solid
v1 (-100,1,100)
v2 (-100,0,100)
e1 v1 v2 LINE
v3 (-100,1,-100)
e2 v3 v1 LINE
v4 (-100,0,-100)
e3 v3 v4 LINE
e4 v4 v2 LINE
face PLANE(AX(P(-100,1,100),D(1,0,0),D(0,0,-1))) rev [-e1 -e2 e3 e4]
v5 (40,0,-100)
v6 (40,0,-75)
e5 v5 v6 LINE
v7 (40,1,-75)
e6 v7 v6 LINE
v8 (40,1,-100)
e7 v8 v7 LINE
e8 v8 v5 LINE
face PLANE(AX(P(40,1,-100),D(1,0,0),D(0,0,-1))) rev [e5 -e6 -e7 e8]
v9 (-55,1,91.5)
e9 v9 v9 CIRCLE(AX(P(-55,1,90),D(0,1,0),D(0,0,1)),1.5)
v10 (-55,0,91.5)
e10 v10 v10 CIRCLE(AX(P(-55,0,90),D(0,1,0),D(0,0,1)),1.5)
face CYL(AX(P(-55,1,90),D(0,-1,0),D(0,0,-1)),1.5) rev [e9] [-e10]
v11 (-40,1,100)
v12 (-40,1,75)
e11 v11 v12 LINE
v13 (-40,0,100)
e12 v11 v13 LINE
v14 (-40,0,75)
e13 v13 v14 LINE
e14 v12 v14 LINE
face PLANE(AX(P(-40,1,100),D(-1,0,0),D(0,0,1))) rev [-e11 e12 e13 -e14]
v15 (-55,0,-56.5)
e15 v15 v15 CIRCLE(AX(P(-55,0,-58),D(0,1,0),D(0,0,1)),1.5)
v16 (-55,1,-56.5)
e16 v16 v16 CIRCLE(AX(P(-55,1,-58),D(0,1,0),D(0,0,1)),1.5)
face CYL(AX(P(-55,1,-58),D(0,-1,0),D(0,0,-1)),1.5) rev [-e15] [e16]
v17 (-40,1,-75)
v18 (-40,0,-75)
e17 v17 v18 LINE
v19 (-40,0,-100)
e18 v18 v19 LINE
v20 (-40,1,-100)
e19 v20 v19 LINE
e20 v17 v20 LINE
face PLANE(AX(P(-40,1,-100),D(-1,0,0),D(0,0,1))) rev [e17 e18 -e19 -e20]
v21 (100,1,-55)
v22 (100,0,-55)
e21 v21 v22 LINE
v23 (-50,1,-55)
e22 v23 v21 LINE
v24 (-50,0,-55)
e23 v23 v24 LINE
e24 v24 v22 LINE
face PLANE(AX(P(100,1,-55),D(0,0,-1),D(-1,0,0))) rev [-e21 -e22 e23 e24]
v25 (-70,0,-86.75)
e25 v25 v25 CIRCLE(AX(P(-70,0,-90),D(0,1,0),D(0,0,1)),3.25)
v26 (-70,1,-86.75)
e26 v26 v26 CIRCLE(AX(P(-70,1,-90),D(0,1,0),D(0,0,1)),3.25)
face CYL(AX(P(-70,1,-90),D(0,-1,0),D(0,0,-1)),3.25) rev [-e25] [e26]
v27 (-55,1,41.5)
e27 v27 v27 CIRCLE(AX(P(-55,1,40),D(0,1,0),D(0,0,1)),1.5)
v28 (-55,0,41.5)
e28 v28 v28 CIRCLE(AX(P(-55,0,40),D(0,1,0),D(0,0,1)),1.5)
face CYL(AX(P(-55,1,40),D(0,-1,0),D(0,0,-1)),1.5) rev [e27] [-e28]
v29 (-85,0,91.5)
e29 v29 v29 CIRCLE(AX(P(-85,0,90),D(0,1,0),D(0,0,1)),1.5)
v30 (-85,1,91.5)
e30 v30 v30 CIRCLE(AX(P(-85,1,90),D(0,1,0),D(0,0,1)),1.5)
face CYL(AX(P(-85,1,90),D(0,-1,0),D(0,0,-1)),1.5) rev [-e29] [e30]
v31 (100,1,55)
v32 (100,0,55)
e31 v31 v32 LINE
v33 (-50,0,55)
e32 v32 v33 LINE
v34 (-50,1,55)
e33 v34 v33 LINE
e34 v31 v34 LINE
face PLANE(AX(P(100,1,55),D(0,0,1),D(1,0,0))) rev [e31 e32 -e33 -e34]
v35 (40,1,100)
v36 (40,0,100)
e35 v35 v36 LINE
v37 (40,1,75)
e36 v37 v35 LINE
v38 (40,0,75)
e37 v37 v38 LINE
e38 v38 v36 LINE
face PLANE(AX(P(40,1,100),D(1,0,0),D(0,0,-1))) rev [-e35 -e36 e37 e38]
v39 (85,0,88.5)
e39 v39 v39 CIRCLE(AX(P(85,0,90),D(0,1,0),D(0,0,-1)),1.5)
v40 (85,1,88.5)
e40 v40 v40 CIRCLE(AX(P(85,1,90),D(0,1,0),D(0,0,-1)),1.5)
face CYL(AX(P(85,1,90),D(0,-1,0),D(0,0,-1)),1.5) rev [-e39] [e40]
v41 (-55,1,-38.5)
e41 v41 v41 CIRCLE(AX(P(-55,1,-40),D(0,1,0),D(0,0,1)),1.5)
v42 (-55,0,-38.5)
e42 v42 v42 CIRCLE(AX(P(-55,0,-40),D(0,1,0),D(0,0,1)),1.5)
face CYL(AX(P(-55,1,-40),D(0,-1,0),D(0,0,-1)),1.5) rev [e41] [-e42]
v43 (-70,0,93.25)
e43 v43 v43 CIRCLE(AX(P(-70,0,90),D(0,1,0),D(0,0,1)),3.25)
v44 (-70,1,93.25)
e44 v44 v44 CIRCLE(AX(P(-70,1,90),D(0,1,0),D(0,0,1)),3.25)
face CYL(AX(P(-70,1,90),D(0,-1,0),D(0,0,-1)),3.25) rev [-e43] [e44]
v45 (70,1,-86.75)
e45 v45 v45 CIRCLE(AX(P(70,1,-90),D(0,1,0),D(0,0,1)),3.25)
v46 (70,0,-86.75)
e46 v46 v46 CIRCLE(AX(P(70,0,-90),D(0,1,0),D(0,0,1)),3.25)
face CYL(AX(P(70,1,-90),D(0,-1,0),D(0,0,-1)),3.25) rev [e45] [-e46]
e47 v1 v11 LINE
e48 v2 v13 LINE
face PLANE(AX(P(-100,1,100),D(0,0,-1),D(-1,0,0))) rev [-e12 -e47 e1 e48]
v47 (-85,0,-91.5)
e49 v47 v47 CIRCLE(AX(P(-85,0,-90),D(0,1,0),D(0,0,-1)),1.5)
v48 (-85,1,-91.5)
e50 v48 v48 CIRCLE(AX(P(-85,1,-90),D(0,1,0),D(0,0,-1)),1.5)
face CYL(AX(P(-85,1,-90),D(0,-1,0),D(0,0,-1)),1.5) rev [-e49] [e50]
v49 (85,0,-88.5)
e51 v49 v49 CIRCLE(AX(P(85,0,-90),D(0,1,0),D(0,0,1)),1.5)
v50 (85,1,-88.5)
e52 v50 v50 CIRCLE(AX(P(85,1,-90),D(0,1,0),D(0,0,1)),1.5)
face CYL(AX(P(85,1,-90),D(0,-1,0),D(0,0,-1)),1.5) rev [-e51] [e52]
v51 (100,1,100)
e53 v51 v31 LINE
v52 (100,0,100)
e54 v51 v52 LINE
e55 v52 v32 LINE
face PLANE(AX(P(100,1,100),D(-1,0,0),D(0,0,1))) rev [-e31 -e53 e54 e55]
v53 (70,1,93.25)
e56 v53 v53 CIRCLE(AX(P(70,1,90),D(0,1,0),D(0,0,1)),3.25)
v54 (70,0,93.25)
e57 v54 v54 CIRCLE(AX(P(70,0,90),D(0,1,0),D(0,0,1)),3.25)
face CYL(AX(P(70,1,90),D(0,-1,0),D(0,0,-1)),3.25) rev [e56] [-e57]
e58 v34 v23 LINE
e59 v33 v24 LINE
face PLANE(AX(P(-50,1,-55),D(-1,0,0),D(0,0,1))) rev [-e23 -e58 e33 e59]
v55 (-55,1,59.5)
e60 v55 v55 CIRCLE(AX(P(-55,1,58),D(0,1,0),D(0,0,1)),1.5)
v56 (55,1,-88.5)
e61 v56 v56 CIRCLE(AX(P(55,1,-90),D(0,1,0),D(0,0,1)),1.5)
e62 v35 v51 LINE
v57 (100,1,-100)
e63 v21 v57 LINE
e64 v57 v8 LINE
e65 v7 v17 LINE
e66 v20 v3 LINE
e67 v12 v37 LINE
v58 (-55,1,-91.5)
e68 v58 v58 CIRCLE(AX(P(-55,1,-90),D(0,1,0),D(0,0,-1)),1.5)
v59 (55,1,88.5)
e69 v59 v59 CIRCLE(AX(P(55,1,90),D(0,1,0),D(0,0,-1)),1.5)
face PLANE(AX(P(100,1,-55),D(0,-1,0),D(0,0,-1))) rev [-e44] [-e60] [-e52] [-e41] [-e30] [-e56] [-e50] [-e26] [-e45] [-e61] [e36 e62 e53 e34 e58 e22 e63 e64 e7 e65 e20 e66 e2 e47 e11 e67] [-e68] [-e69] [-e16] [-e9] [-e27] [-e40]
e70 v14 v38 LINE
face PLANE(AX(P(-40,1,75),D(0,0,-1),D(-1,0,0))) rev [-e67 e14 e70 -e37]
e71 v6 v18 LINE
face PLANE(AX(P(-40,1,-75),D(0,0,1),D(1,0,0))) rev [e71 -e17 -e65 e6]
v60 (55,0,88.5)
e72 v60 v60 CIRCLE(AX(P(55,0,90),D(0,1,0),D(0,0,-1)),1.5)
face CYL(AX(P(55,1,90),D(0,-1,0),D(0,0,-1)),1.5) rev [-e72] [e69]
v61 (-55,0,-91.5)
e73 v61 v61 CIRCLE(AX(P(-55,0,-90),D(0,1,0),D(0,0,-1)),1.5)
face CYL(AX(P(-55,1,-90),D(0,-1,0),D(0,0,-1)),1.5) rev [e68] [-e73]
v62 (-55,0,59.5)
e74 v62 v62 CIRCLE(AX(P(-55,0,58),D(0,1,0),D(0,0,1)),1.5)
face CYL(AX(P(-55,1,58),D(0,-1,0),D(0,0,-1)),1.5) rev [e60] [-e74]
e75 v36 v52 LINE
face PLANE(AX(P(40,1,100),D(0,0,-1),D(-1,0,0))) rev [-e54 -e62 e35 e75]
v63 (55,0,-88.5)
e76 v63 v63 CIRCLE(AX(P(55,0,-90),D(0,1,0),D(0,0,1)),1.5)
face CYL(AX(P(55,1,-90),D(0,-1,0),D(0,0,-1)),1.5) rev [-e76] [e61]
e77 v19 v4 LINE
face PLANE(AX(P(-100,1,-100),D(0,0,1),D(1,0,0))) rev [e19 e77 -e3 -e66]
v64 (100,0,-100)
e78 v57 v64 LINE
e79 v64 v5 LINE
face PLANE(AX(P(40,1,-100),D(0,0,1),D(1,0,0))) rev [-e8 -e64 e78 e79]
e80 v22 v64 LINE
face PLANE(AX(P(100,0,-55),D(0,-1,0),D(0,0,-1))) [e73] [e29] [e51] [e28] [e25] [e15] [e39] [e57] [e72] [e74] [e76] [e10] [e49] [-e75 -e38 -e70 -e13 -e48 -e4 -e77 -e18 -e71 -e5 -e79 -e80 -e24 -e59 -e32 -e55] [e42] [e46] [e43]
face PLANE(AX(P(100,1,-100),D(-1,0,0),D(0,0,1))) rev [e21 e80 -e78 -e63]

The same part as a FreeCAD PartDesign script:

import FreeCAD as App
import Part
import Sketcher
from FreeCAD import Vector


def add_polygon(sketch, points):
    """Adds a closed chain of lines whose ends are joined by coincident constraints."""
    first, n = sketch.GeometryCount, len(points)
    for a, b in zip(points, points[1:] + points[:1]):
        sketch.addGeometry(Part.LineSegment(App.Vector(*a, 0), App.Vector(*b, 0)), False)
    for i in range(n):
        sketch.addConstraint(Sketcher.Constraint("Coincident", first + i, 2, first + (i + 1) % n, 1))

doc = App.newDocument("Part")
body = doc.addObject("PartDesign::Body", "Body")

# Sketch on XZ plane
sketch1 = body.newObject("Sketcher::SketchObject", "Sketch")
sketch1.AttachmentSupport = (doc.getObject("XZ_Plane"), [""])
sketch1.MapMode = "FlatFace"
add_polygon(sketch1, [(-40, -75), (-40, -100), (-100, -100), (-100, 100), (-40, 100), (-40, 75), (40, 75), (40, 100), (100, 100), (100, 55), (-50, 55), (-50, -55), (100, -55), (100, -100), (40, -100), (40, -75)])  # lines 0-15
sketch1.addGeometry(Part.Circle(Vector(85, 90, 0), Vector(0, 0, 1), 1.5), False)  # 16
sketch1.addGeometry(Part.Circle(Vector(70, 90, 0), Vector(0, 0, 1), 3.2), False)  # 17
sketch1.addGeometry(Part.Circle(Vector(55, 90, 0), Vector(0, 0, 1), 1.5), False)  # 18
sketch1.addGeometry(Part.Circle(Vector(-55, 90, 0), Vector(0, 0, 1), 1.5), False)  # 19
sketch1.addGeometry(Part.Circle(Vector(-70, 90, 0), Vector(0, 0, 1), 3.2), False)  # 20
sketch1.addGeometry(Part.Circle(Vector(-85, 90, 0), Vector(0, 0, 1), 1.5), False)  # 21
sketch1.addGeometry(Part.Circle(Vector(-55, 58, 0), Vector(0, 0, 1), 1.5), False)  # 22
sketch1.addGeometry(Part.Circle(Vector(-55, 40, 0), Vector(0, 0, 1), 1.5), False)  # 23
sketch1.addGeometry(Part.Circle(Vector(85, -90, 0), Vector(0, 0, 1), 1.5), False)  # 24
sketch1.addGeometry(Part.Circle(Vector(70, -90, 0), Vector(0, 0, 1), 3.2), False)  # 25
sketch1.addGeometry(Part.Circle(Vector(55, -90, 0), Vector(0, 0, 1), 1.5), False)  # 26
sketch1.addGeometry(Part.Circle(Vector(-55, -40, 0), Vector(0, 0, 1), 1.5), False)  # 27
sketch1.addGeometry(Part.Circle(Vector(-55, -58, 0), Vector(0, 0, 1), 1.5), False)  # 28
sketch1.addGeometry(Part.Circle(Vector(-55, -90, 0), Vector(0, 0, 1), 1.5), False)  # 29
sketch1.addGeometry(Part.Circle(Vector(-70, -90, 0), Vector(0, 0, 1), 3.2), False)  # 30
sketch1.addGeometry(Part.Circle(Vector(-85, -90, 0), Vector(0, 0, 1), 1.5), False)  # 31
sketch1.addConstraint(Sketcher.Constraint("Vertical", 0))
sketch1.addConstraint(Sketcher.Constraint("Horizontal", 1))
sketch1.addConstraint(Sketcher.Constraint("Vertical", 2))
sketch1.addConstraint(Sketcher.Constraint("Horizontal", 3))
sketch1.addConstraint(Sketcher.Constraint("Vertical", 4))
sketch1.addConstraint(Sketcher.Constraint("Horizontal", 5))
sketch1.addConstraint(Sketcher.Constraint("Vertical", 6))
sketch1.addConstraint(Sketcher.Constraint("Horizontal", 7))
sketch1.addConstraint(Sketcher.Constraint("Vertical", 8))
sketch1.addConstraint(Sketcher.Constraint("Horizontal", 9))
sketch1.addConstraint(Sketcher.Constraint("Vertical", 10))
sketch1.addConstraint(Sketcher.Constraint("Horizontal", 11))
sketch1.addConstraint(Sketcher.Constraint("Vertical", 12))
sketch1.addConstraint(Sketcher.Constraint("Horizontal", 13))
sketch1.addConstraint(Sketcher.Constraint("Vertical", 14))
sketch1.addConstraint(Sketcher.Constraint("Horizontal", 15))
sketch1.addConstraint(Sketcher.Constraint("Equal", 16, 18))
sketch1.addConstraint(Sketcher.Constraint("Equal", 18, 19))
sketch1.addConstraint(Sketcher.Constraint("Equal", 17, 20))
sketch1.addConstraint(Sketcher.Constraint("Equal", 19, 21))
sketch1.addConstraint(Sketcher.Constraint("Equal", 21, 22))
sketch1.addConstraint(Sketcher.Constraint("Equal", 22, 23))
sketch1.addConstraint(Sketcher.Constraint("Equal", 23, 24))
sketch1.addConstraint(Sketcher.Constraint("Equal", 20, 25))
sketch1.addConstraint(Sketcher.Constraint("Equal", 24, 26))
sketch1.addConstraint(Sketcher.Constraint("Equal", 26, 27))
sketch1.addConstraint(Sketcher.Constraint("Equal", 27, 28))
sketch1.addConstraint(Sketcher.Constraint("Equal", 28, 29))
sketch1.addConstraint(Sketcher.Constraint("Equal", 25, 30))
sketch1.addConstraint(Sketcher.Constraint("Equal", 29, 31))
sketch1.addConstraint(Sketcher.Constraint("Symmetric", 21, 3, 24, 3, -1, 1))
sketch1.addConstraint(Sketcher.Constraint("Symmetric", 20, 3, 25, 3, -1, 1))
sketch1.addConstraint(Sketcher.Constraint("Symmetric", 19, 3, 26, 3, -1, 1))
sketch1.addConstraint(Sketcher.Constraint("Symmetric", 18, 3, 29, 3, -1, 1))
sketch1.addConstraint(Sketcher.Constraint("Symmetric", 17, 3, 30, 3, -1, 1))
sketch1.addConstraint(Sketcher.Constraint("Symmetric", 16, 3, 31, 3, -1, 1))
sketch1.addConstraint(Sketcher.Constraint("Symmetric", 0, 2, 6, 2, -1, 1))
sketch1.addConstraint(Sketcher.Constraint("Symmetric", 2, 2, 12, 2, -1, 1))
sketch1.addConstraint(Sketcher.Constraint("Symmetric", 4, 2, 14, 2, -1, 1))
sketch1.addConstraint(Sketcher.Constraint("Symmetric", 18, 3, 19, 3, -2))
sketch1.addConstraint(Sketcher.Constraint("Symmetric", 17, 3, 20, 3, -2))
sketch1.addConstraint(Sketcher.Constraint("Symmetric", 16, 3, 21, 3, -2))
sketch1.addConstraint(Sketcher.Constraint("Symmetric", 3, 2, 6, 2, -2))
sketch1.addConstraint(Sketcher.Constraint("Symmetric", 23, 3, 27, 3, -1))
sketch1.addConstraint(Sketcher.Constraint("Symmetric", 22, 3, 28, 3, -1))
sketch1.addConstraint(Sketcher.Constraint("Symmetric", 8, 2, 11, 2, -1))
sketch1.addConstraint(Sketcher.Constraint("Horizontal", 16, 3, 17, 3))
sketch1.addConstraint(Sketcher.Constraint("Horizontal", 17, 3, 18, 3))
sketch1.addConstraint(Sketcher.Constraint("Vertical", 19, 3, 22, 3))
sketch1.addConstraint(Sketcher.Constraint("Vertical", 22, 3, 23, 3))
sketch1.addConstraint(Sketcher.Constraint("Diameter", 16, 3.0))
sketch1.addConstraint(Sketcher.Constraint("Diameter", 17, 6.5))
sketch1.addConstraint(Sketcher.Constraint("DistanceX", 1, 2, 1, 1, 60.0))
sketch1.addConstraint(Sketcher.Constraint("DistanceX", 5, 1, 5, 2, 80.0))
sketch1.addConstraint(Sketcher.Constraint("DistanceX", 9, 2, 9, 1, 150.0))
sketch1.addConstraint(Sketcher.Constraint("DistanceY", 0, 2, 0, 1, 25.0))
sketch1.addConstraint(Sketcher.Constraint("DistanceY", 2, 1, 2, 2, 200.0))
sketch1.addConstraint(Sketcher.Constraint("DistanceY", 8, 2, 8, 1, 45.0))
sketch1.addConstraint(Sketcher.Constraint("DistanceX", -1, 1, 16, 3, 85.0))
sketch1.addConstraint(Sketcher.Constraint("DistanceY", -1, 1, 16, 3, 90.0))
sketch1.addConstraint(Sketcher.Constraint("DistanceX", -1, 1, 17, 3, 70.0))
sketch1.addConstraint(Sketcher.Constraint("DistanceX", -1, 1, 18, 3, 55.0))
sketch1.addConstraint(Sketcher.Constraint("DistanceY", -1, 1, 22, 3, 58.0))
sketch1.addConstraint(Sketcher.Constraint("DistanceY", -1, 1, 23, 3, 40.0))
pad1 = body.newObject("PartDesign::Pad", "Pad")
pad1.Profile = sketch1
pad1.Length = 1
pad1.Reversed = True

doc.recompute()
